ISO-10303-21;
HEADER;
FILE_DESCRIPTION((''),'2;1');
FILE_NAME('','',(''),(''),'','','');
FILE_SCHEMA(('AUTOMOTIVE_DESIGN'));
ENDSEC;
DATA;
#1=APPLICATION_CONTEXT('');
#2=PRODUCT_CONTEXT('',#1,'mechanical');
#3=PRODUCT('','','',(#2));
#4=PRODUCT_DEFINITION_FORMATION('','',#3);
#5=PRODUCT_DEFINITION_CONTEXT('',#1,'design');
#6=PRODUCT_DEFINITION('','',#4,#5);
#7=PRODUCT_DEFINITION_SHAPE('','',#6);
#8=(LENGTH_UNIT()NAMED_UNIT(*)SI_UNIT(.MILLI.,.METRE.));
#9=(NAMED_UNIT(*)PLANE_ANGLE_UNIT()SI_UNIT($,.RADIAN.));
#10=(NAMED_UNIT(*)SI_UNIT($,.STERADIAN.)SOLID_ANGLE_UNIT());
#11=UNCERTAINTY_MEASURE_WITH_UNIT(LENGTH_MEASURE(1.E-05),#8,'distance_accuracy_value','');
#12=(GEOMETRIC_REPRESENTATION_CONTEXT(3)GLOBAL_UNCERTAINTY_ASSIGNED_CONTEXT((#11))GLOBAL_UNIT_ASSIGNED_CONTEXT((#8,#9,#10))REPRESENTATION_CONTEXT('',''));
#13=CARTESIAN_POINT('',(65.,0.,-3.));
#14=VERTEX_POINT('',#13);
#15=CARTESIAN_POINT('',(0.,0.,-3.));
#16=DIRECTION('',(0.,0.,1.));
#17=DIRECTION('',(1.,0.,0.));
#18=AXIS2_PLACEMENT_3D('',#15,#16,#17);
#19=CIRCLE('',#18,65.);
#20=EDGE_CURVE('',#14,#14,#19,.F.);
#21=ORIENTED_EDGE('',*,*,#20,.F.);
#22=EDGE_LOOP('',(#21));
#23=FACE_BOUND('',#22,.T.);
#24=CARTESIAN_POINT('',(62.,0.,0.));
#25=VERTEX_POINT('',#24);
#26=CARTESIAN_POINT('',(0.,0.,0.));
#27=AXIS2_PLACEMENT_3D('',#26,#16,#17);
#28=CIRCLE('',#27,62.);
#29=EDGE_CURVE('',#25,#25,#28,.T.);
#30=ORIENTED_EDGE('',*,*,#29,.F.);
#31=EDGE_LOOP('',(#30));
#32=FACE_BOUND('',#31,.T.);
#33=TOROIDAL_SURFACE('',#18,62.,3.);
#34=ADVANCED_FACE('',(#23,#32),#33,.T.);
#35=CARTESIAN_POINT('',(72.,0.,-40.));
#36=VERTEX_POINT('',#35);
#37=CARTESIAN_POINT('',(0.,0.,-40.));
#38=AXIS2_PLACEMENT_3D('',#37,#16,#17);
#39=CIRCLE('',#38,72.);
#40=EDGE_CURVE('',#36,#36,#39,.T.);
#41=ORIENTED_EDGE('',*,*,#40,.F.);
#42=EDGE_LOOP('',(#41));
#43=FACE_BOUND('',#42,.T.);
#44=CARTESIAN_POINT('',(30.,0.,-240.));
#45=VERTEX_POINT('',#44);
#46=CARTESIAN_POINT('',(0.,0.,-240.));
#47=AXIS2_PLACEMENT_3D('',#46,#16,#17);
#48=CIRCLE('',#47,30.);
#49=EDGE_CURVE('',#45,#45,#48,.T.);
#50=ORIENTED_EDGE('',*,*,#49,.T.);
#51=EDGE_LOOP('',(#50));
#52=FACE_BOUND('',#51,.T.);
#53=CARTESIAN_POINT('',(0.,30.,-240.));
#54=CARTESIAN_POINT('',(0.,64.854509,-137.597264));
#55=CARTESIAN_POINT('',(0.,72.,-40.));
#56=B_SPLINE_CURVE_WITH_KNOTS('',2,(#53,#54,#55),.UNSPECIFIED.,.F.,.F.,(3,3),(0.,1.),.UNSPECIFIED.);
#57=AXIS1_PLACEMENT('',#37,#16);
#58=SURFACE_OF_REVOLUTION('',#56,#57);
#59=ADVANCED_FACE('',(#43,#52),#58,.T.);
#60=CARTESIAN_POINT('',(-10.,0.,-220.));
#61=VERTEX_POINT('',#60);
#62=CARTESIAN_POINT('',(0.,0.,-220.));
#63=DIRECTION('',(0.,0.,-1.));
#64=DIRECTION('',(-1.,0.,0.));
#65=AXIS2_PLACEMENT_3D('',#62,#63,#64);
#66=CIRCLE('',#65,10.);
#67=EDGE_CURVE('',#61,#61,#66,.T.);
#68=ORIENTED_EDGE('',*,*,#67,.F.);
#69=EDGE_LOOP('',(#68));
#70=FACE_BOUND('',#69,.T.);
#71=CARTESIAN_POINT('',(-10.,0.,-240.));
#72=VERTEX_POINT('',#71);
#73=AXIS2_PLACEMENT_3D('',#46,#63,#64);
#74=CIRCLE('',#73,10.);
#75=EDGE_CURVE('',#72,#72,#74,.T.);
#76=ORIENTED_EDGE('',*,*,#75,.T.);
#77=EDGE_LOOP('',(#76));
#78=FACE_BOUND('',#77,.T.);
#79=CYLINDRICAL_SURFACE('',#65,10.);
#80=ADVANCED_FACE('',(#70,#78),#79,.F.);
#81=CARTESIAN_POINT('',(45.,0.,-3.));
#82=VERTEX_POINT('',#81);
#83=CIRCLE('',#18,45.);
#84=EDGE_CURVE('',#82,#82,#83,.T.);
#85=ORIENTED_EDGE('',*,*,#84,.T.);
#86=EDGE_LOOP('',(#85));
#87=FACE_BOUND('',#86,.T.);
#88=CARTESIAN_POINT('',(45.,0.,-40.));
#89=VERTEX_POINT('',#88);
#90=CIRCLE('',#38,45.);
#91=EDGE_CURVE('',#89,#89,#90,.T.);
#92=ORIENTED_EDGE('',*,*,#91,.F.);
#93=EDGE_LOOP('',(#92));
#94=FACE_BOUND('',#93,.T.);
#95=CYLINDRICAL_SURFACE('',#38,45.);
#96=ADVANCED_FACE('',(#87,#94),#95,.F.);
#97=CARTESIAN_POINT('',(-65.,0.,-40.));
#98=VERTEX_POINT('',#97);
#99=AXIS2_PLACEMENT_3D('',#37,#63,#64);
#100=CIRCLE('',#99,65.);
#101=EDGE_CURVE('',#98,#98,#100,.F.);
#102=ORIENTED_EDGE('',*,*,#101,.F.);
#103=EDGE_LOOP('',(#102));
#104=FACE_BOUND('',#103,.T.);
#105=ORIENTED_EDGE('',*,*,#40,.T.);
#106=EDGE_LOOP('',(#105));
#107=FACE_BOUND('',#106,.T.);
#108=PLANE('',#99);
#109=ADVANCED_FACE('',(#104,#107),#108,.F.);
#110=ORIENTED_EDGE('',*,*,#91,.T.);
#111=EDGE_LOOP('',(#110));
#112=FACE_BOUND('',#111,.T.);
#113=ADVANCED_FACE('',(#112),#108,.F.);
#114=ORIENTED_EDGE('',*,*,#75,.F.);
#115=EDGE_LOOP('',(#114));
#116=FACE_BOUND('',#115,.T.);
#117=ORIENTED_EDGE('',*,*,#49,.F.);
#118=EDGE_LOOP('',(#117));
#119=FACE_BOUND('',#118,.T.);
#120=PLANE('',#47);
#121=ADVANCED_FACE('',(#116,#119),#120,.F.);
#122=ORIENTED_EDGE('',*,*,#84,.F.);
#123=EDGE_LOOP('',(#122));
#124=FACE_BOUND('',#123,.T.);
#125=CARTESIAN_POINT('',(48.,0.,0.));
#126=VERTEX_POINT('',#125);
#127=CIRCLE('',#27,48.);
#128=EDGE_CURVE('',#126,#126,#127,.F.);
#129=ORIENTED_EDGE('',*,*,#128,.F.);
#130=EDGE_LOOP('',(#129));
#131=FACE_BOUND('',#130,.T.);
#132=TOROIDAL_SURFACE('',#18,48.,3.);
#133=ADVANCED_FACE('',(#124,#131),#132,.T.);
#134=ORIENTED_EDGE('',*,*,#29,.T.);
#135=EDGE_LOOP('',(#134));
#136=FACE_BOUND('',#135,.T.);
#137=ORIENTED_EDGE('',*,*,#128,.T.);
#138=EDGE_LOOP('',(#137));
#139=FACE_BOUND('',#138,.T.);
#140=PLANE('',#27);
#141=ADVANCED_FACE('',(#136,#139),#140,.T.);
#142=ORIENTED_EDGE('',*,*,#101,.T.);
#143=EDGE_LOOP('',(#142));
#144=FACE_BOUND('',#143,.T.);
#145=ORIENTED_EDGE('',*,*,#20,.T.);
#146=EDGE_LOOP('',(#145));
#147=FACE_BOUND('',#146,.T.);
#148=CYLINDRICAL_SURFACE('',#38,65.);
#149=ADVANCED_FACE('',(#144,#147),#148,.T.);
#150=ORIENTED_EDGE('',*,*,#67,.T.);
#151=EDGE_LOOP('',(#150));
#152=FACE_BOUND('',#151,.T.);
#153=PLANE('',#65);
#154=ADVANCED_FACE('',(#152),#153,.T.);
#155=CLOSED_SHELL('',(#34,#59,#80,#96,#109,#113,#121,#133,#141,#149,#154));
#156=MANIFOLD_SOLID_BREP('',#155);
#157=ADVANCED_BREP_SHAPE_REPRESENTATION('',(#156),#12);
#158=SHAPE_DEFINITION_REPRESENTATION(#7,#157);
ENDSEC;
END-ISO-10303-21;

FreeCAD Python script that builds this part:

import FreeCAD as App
import Part
import Sketcher

V = App.Vector


def edges_at(feature, points):
    """Names of the edges that pass closest to the given points."""
    edges = feature.Shape.Edges
    near = lambda p: min(range(len(edges)), key=lambda i: edges[i].distToShape(Part.Vertex(*p))[0])
    return sorted({f"Edge{near(p) + 1}" for p in points})

doc = App.newDocument("Part")
body = doc.addObject("PartDesign::Body", "Body")

# Sketch on XY plane
sketch1 = body.newObject("Sketcher::SketchObject", "Sketch")
sketch1.AttachmentSupport = (doc.getObject("XY_Plane"), [""])
sketch1.MapMode = "FlatFace"
sketch1.addGeometry([
    Part.Circle(V(0, 0, 0), V(0, 0, 1), 65),
    Part.Circle(V(0, 0, 0), V(0, 0, 1), 45),
], False)
sketch1.addConstraint([
    Sketcher.Constraint("Coincident", 0, 3, -1, 1),
    Sketcher.Constraint("Coincident", 1, 3, -1, 1),
    Sketcher.Constraint("Diameter", 0, 130.0),
    Sketcher.Constraint("Diameter", 1, 90.0),
])
pad1 = body.newObject("PartDesign::Pad", "Pad")
pad1.Profile = sketch1
pad1.Length = 40
pad1.Reversed = True
doc.recompute()

fillet = body.newObject("PartDesign::Fillet", "Fillet")
fillet.Base = (pad1, edges_at(pad1, [(-65, 0, 0), (-45, 0, 0)]))
fillet.Radius = 3

# Sketch on YZ plane
sketch2 = body.newObject("Sketcher::SketchObject", "Sketch001")
sketch2.AttachmentSupport = (doc.getObject("YZ_Plane"), [""])
sketch2.MapMode = "FlatFace"
sketch2.addGeometry([
    Part.LineSegment(V(0, -40, 0), V(0, -240, 0)),
    Part.LineSegment(V(0, -240, 0), V(30, -240, 0)),
    Part.BSplineCurve([V(72, -40, 0), V(64.854509, -137.597264, 0), V(30, -240, 0)], [3, 3], [0, 1], False, 2, [1, 1, 1], False),
    Part.LineSegment(V(72, -40, 0), V(0, -40, 0)),
], False)
sketch2.addConstraint([
    Sketcher.Constraint("Block", 2),
    Sketcher.Constraint("Coincident", 0, 2, 1, 1),
    Sketcher.Constraint("Coincident", 1, 2, 2, 2),
    Sketcher.Constraint("Coincident", 2, 1, 3, 1),
    Sketcher.Constraint("Coincident", 3, 2, 0, 1),
    Sketcher.Constraint("Vertical", 0),
    Sketcher.Constraint("Horizontal", 1),
    Sketcher.Constraint("Horizontal", 3),
    Sketcher.Constraint("PointOnObject", 0, 2, -2),
])
revolution = body.newObject("PartDesign::Revolution", "Revolution")
revolution.Profile = sketch2
revolution.ReferenceAxis = (sketch2, ["V_Axis"])
revolution.Angle = 360

# Sketch on XY plane
sketch3 = body.newObject("Sketcher::SketchObject", "Sketch002")
sketch3.AttachmentSupport = (doc.getObject("XY_Plane"), [""])
sketch3.MapMode = "FlatFace"
sketch3.AttachmentOffset = App.Placement(V(0, 0, -240), App.Rotation())
sketch3.addGeometry(Part.Circle(V(0, 0, 0), V(0, 0, 1), 10), False)
sketch3.addConstraint([
    Sketcher.Constraint("Coincident", 0, 3, -1, 1),
    Sketcher.Constraint("Diameter", 0, 20.0),
])
pocket1 = body.newObject("PartDesign::Pocket", "Pocket")
pocket1.Profile = sketch3
pocket1.Length = 20
pocket1.Reversed = True

doc.recompute()
